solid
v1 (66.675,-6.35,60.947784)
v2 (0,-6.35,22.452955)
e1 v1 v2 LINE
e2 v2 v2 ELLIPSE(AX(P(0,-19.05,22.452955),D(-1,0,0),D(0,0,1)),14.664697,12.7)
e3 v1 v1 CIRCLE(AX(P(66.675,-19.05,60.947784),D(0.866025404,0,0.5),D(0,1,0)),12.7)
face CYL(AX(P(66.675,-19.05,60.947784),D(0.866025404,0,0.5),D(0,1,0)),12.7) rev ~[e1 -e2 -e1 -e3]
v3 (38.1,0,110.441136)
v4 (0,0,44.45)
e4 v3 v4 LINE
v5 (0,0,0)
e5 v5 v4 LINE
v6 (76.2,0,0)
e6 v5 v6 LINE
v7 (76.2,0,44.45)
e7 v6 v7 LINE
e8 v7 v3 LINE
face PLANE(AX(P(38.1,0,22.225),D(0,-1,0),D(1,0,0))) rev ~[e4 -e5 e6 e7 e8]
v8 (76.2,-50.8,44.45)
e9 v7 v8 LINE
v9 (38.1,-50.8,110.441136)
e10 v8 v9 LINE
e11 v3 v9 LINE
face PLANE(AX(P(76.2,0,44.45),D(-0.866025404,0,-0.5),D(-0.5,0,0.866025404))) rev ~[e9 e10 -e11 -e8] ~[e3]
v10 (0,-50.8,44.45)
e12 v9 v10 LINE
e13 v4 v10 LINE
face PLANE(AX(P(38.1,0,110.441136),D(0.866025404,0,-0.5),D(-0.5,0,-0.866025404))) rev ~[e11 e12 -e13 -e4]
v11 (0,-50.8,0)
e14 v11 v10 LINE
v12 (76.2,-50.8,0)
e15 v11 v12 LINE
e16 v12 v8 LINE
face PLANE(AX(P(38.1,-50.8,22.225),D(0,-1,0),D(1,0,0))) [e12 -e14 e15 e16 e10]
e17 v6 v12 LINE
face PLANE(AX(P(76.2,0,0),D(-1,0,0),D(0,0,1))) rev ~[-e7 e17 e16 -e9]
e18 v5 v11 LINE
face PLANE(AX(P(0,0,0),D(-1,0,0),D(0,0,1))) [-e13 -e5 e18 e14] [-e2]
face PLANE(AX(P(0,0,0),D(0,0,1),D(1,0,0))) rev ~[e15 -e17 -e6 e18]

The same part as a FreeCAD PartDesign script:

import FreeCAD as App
import Part
import Sketcher
from FreeCAD import Vector
Q = App.Units.Quantity

doc = App.newDocument("Part")
body = doc.addObject("PartDesign::Body", "Body")

# Sketch on XZ plane
sketch1 = body.newObject("Sketcher::SketchObject", "Sketch")
sketch1.AttachmentSupport = (doc.getObject("XZ_Plane"), [""])
sketch1.MapMode = "FlatFace"
sketch1.addGeometry([
    Part.LineSegment(Vector(0, 44, 0), Vector(0, 0, 0)),  # 0
    Part.LineSegment(Vector(0, 0, 0), Vector(76, 0, 0)),  # 1
    Part.LineSegment(Vector(76, 0, 0), Vector(76, 44, 0)),  # 2
    Part.LineSegment(Vector(76, 44, 0), Vector(38, 110, 0)),  # 3
    Part.LineSegment(Vector(38, 110, 0), Vector(0, 44, 0)),  # 4
], False)
sketch1.addConstraint([
    Sketcher.Constraint("Coincident", 0, 2, 1, 1),
    Sketcher.Constraint("Coincident", 1, 2, 2, 1),
    Sketcher.Constraint("Coincident", 2, 2, 3, 1),
    Sketcher.Constraint("Coincident", 3, 2, 4, 1),
    Sketcher.Constraint("Coincident", 4, 2, 0, 1),
    Sketcher.Constraint("Vertical", 0),
    Sketcher.Constraint("Horizontal", 1),
    Sketcher.Constraint("Vertical", 2),
    Sketcher.Constraint("Coincident", 0, 2, -1, 1),
    Sketcher.Constraint("Horizontal", 2, 2, 4, 2),
    Sketcher.Constraint("Equal", 3, 4),
    Sketcher.Constraint("DistanceX", 1, 1, 1, 2, Q("3 in")),
    Sketcher.Constraint("Distance", 3, Q("3 in")),
    Sketcher.Constraint("DistanceY", 0, 2, 0, 1, Q("1.75 in")),
])
pad1 = body.newObject("PartDesign::Pad", "Pad")
pad1.Profile = sketch1
pad1.Length = Q("2 in")

# Sketch on an angled plane
sketch2 = body.newObject("Sketcher::SketchObject", "Sketch001")
sketch2.Placement = App.Placement(Vector(76.397415, 0, 44.108068), App.Rotation(Vector(0, 1, 0), Vector(-0.5, 0, 0.866025404), Vector(0.866025404, 0, 0.5), "ZXY"))
sketch2.addGeometry(Part.Circle(Vector(-19, 19, 0), Vector(0, 0, 1), 13), False)
sketch2.addConstraint([
    Sketcher.Constraint("Diameter", 0, Q("1 in")),
    Sketcher.Constraint("DistanceX", 0, 3, -1, 1, Q("0.75 in")),
    Sketcher.Constraint("DistanceY", -1, 1, 0, 3, 19.444829),
])
pocket1 = body.newObject("PartDesign::Pocket", "Pocket")
pocket1.Profile = sketch2
pocket1.Type = "ThroughAll"

doc.recompute()
